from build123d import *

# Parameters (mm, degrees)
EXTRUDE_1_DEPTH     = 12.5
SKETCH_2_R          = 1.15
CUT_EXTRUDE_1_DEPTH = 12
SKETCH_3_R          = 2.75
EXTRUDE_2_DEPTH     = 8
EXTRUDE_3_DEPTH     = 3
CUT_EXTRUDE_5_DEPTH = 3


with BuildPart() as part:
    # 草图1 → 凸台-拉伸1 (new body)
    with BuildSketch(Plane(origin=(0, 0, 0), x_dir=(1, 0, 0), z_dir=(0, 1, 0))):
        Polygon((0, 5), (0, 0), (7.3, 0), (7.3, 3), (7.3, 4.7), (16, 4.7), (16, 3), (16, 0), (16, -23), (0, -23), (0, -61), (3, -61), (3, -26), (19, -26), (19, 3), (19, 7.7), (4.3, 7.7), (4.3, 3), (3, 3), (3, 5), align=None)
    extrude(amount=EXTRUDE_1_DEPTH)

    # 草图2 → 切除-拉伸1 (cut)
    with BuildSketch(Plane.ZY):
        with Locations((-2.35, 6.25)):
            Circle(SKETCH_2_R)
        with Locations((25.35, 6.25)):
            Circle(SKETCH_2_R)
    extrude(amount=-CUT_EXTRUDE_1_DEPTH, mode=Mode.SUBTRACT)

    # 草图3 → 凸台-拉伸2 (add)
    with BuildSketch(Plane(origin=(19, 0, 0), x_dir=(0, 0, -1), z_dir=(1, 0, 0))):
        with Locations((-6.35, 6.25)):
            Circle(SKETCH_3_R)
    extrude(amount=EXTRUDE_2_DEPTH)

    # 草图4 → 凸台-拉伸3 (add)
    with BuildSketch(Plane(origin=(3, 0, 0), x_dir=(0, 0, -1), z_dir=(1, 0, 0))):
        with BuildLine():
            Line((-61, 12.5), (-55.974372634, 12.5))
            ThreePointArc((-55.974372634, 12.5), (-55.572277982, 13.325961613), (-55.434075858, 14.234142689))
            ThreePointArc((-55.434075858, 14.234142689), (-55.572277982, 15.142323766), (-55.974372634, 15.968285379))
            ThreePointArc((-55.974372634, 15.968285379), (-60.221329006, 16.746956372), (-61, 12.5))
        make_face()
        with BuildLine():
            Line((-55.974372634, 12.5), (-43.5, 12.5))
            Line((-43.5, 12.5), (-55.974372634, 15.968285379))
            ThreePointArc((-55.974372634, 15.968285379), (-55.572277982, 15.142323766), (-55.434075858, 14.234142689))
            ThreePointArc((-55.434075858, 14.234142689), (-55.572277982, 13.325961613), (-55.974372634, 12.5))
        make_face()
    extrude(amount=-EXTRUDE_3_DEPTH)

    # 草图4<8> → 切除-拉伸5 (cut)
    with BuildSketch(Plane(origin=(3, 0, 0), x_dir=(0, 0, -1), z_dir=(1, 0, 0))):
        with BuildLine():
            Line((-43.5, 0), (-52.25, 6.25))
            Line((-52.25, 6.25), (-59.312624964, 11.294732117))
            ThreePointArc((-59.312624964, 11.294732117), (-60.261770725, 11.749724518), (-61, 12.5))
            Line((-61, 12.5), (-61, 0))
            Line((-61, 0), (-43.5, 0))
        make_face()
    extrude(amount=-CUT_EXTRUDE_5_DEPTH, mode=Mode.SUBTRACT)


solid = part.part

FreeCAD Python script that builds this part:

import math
import FreeCAD as App
import Part
import Sketcher
from FreeCAD import Vector
Q = App.Units.Quantity


def add_polygon(sketch, points):
    """Adds a closed chain of lines whose ends are joined by coincident constraints."""
    first, n = sketch.GeometryCount, len(points)
    for a, b in zip(points, points[1:] + points[:1]):
        sketch.addGeometry(Part.LineSegment(App.Vector(*a, 0), App.Vector(*b, 0)), False)
    for i in range(n):
        sketch.addConstraint(Sketcher.Constraint("Coincident", first + i, 2, first + (i + 1) % n, 1))

doc = App.newDocument("Part")
body = doc.addObject("PartDesign::Body", "Body")

# Sketch on XZ plane
sketch1 = doc.addObject("Sketcher::SketchObject", "Sketch")
body.addObject(sketch1)
sketch1.AttachmentSupport = (doc.XZ_Plane, [""])
sketch1.MapMode = "FlatFace"
add_polygon(sketch1, [(0, -5), (0, 0), (7.3, 0), (7.3, -4.7), (16, -4.7), (16, 23), (0, 23), (0, 61), (3, 61), (3, 26), (19, 26), (19, -7.7), (4.3, -7.7), (4.3, -3), (3, -3), (3, -5)])  # lines 0-15
sketch1.addConstraint(Sketcher.Constraint("Vertical", 0))
sketch1.addConstraint(Sketcher.Constraint("Horizontal", 1))
sketch1.addConstraint(Sketcher.Constraint("Vertical", 2))
sketch1.addConstraint(Sketcher.Constraint("Horizontal", 3))
sketch1.addConstraint(Sketcher.Constraint("Vertical", 4))
sketch1.addConstraint(Sketcher.Constraint("Horizontal", 5))
sketch1.addConstraint(Sketcher.Constraint("Vertical", 6))
sketch1.addConstraint(Sketcher.Constraint("Horizontal", 7))
sketch1.addConstraint(Sketcher.Constraint("Vertical", 8))
sketch1.addConstraint(Sketcher.Constraint("Horizontal", 9))
sketch1.addConstraint(Sketcher.Constraint("Vertical", 10))
sketch1.addConstraint(Sketcher.Constraint("Horizontal", 11))
sketch1.addConstraint(Sketcher.Constraint("Vertical", 12))
sketch1.addConstraint(Sketcher.Constraint("Horizontal", 13))
sketch1.addConstraint(Sketcher.Constraint("Vertical", 14))
sketch1.addConstraint(Sketcher.Constraint("Horizontal", 15))
sketch1.addConstraint(Sketcher.Constraint("Coincident", 0, 2, -1, 1))
sketch1.addConstraint(Sketcher.Constraint("PointOnObject", 5, 2, -2))
sketch1.addConstraint(Sketcher.Constraint("Vertical", 8, 2, 13, 2))
sketch1.addConstraint(Sketcher.Constraint("Equal", 5, 9))
sketch1.addConstraint(Sketcher.Constraint("Equal", 2, 12))
sketch1.addConstraint(Sketcher.Constraint("DistanceX", 5, 2, 5, 1, Q("16 mm")))
sketch1.addConstraint(Sketcher.Constraint("DistanceX", 7, 1, 7, 2, Q("3 mm")))
sketch1.addConstraint(Sketcher.Constraint("DistanceY", 0, 1, 0, 2, Q("5 mm")))
sketch1.addConstraint(Sketcher.Constraint("DistanceY", 6, 1, 6, 2, Q("38 mm")))
sketch1.addConstraint(Sketcher.Constraint("DistanceY", 8, 2, 8, 1, Q("35 mm")))
sketch1.addConstraint(Sketcher.Constraint("DistanceY", 14, 2, 14, 1, Q("2 mm")))
sketch1.addConstraint(Sketcher.Constraint("DistanceX", 1, 1, 1, 2, Q("7.3 mm")))
sketch1.addConstraint(Sketcher.Constraint("DistanceX", 11, 2, 11, 1, Q("14.7 mm")))
sketch1.addConstraint(Sketcher.Constraint("DistanceY", 2, 2, 2, 1, Q("4.7 mm")))
sketch1.addConstraint(Sketcher.Constraint("DistanceY", 4, 1, 4, 2, Q("27.7 mm")))
pad1 = doc.addObject("PartDesign::Pad", "Pad")
body.addObject(pad1)
pad1.Profile = sketch1
pad1.Length = 12.5
pad1.Reversed = True

# Sketch on YZ plane
sketch2 = doc.addObject("Sketcher::SketchObject", "Sketch001")
body.addObject(sketch2)
sketch2.AttachmentSupport = (doc.YZ_Plane, [""])
sketch2.MapMode = "FlatFace"
sketch2.addGeometry(Part.Circle(Vector(6.2, -2.4, 0), Vector(0, 0, 1), 1.1), False)
sketch2.addGeometry(Part.Circle(Vector(6.2, 25.4, 0), Vector(0, 0, 1), 1.1), False)
sketch2.addConstraint(Sketcher.Constraint("Equal", 0, 1))
sketch2.addConstraint(Sketcher.Constraint("Vertical", 0, 3, 1, 3))
sketch2.addConstraint(Sketcher.Constraint("Diameter", 0, Q("2.3 mm")))
sketch2.addConstraint(Sketcher.Constraint("DistanceY", 0, 3, 1, 3, Q("27.7 mm")))
sketch2.addConstraint(Sketcher.Constraint("DistanceX", -1, 1, 0, 3, Q("6.25 mm")))
sketch2.addConstraint(Sketcher.Constraint("DistanceY", 0, 3, -1, 1, Q("2.35 mm")))
pocket1 = doc.addObject("PartDesign::Pocket", "Pocket")
body.addObject(pocket1)
pocket1.Profile = sketch2
pocket1.Length = 12
pocket1.Reversed = True

# Sketch on YZ plane
sketch3 = doc.addObject("Sketcher::SketchObject", "Sketch002")
body.addObject(sketch3)
sketch3.AttachmentSupport = (doc.YZ_Plane, [""])
sketch3.MapMode = "FlatFace"
sketch3.AttachmentOffset = App.Placement(Vector(0, 0, 19), App.Rotation())
sketch3.addGeometry(Part.Circle(Vector(6.2, 6.3, 0), Vector(0, 0, 1), 2.8), False)
sketch3.addConstraint(Sketcher.Constraint("Diameter", 0, Q("5.5 mm")))
sketch3.addConstraint(Sketcher.Constraint("DistanceX", -1, 1, 0, 3, Q("6.25 mm")))
sketch3.addConstraint(Sketcher.Constraint("DistanceY", -1, 1, 0, 3, Q("6.35 mm")))
pad2 = doc.addObject("PartDesign::Pad", "Pad001")
body.addObject(pad2)
pad2.Profile = sketch3
pad2.Length = 8

# Sketch on YZ plane
sketch4 = doc.addObject("Sketcher::SketchObject", "Sketch003")
body.addObject(sketch4)
sketch4.AttachmentSupport = (doc.YZ_Plane, [""])
sketch4.MapMode = "FlatFace"
sketch4.AttachmentOffset = App.Placement(Vector(0, 0, 3), App.Rotation())
sketch4.addGeometry(Part.LineSegment(Vector(12.5, 61, 0), Vector(12.5, 43.5, 0)), False)
sketch4.addGeometry(Part.LineSegment(Vector(12.5, 43.5, 0), Vector(16, 56, 0)), False)
sketch4.addGeometry(Part.ArcOfCircle(Part.Circle(Vector(14.2, 58.5, 0), Vector(0, 0, 1), 3.1), math.radians(-55), math.radians(125)), False)
sketch4.addConstraint(Sketcher.Constraint("Coincident", 0, 2, 1, 1))
sketch4.addConstraint(Sketcher.Constraint("Coincident", 1, 2, 2, 1))
sketch4.addConstraint(Sketcher.Constraint("Coincident", 2, 2, 0, 1))
sketch4.addConstraint(Sketcher.Constraint("Vertical", 0))
sketch4.addConstraint(Sketcher.Constraint("DistanceY", 0, 2, 0, 1, Q("17.5 mm")))
sketch4.addConstraint(Sketcher.Constraint("DistanceY", -1, 1, 2, 2, Q("61 mm")))
sketch4.addConstraint(Sketcher.Constraint("DistanceX", -1, 1, 0, 2, Q("12.5 mm")))
sketch4.addConstraint(Sketcher.Constraint("Radius", 2, Q("3.05311 mm")))
sketch4.addConstraint(Sketcher.Constraint("Distance", 1, Q("12.947547 mm")))
sketch4.addConstraint(Sketcher.Constraint("DistanceX", -1, 1, 2, 3, Q("14.234143 mm")))
pad3 = doc.addObject("PartDesign::Pad", "Pad002")
body.addObject(pad3)
pad3.Profile = sketch4
pad3.Length = 3
pad3.Reversed = True

# Sketch on YZ plane
sketch5 = doc.addObject("Sketcher::SketchObject", "Sketch004")
body.addObject(sketch5)
sketch5.AttachmentSupport = (doc.YZ_Plane, [""])
sketch5.MapMode = "FlatFace"
sketch5.AttachmentOffset = App.Placement(Vector(0, 0, 3), App.Rotation())
sketch5.addGeometry(Part.LineSegment(Vector(0, 43.5, 0), Vector(6.2, 52.2, 0)), False)
sketch5.addGeometry(Part.LineSegment(Vector(6.2, 52.2, 0), Vector(11.3, 59.3, 0)), False)
sketch5.addGeometry(Part.ArcOfCircle(Part.Circle(Vector(14.2, 58.5, 0), Vector(0, 0, 1), 3.1), math.radians(125), math.radians(164)), False)
sketch5.addGeometry(Part.LineSegment(Vector(12.5, 61, 0), Vector(0, 61, 0)), False)
sketch5.addGeometry(Part.LineSegment(Vector(0, 61, 0), Vector(0, 43.5, 0)), False)
sketch5.addConstraint(Sketcher.Constraint("Coincident", 0, 2, 1, 1))
sketch5.addConstraint(Sketcher.Constraint("Coincident", 1, 2, 2, 2))
sketch5.addConstraint(Sketcher.Constraint("Coincident", 2, 1, 3, 1))
sketch5.addConstraint(Sketcher.Constraint("Coincident", 3, 2, 4, 1))
sketch5.addConstraint(Sketcher.Constraint("Coincident", 4, 2, 0, 1))
sketch5.addConstraint(Sketcher.Constraint("Horizontal", 3))
sketch5.addConstraint(Sketcher.Constraint("Vertical", 4))
sketch5.addConstraint(Sketcher.Constraint("PointOnObject", 3, 2, -2))
sketch5.addConstraint(Sketcher.Constraint("Parallel", 0, 1))
sketch5.addConstraint(Sketcher.Constraint("DistanceX", 3, 2, 3, 1, Q("12.5 mm")))
sketch5.addConstraint(Sketcher.Constraint("DistanceY", 4, 2, 4, 1, Q("17.5 mm")))
sketch5.addConstraint(Sketcher.Constraint("DistanceY", -1, 1, 2, 1, Q("61 mm")))
sketch5.addConstraint(Sketcher.Constraint("DistanceX", -1, 1, 0, 2, Q("6.25 mm")))
sketch5.addConstraint(Sketcher.Constraint("DistanceY", -1, 1, 0, 2, Q("52.25 mm")))
sketch5.addConstraint(Sketcher.Constraint("Radius", 2, Q("3.05311 mm")))
sketch5.addConstraint(Sketcher.Constraint("DistanceX", 1, 2, 2, 3, Q("2.939411 mm")))
pocket2 = doc.addObject("PartDesign::Pocket", "Pocket001")
body.addObject(pocket2)
pocket2.Profile = sketch5
pocket2.Length = 3

doc.recompute()
